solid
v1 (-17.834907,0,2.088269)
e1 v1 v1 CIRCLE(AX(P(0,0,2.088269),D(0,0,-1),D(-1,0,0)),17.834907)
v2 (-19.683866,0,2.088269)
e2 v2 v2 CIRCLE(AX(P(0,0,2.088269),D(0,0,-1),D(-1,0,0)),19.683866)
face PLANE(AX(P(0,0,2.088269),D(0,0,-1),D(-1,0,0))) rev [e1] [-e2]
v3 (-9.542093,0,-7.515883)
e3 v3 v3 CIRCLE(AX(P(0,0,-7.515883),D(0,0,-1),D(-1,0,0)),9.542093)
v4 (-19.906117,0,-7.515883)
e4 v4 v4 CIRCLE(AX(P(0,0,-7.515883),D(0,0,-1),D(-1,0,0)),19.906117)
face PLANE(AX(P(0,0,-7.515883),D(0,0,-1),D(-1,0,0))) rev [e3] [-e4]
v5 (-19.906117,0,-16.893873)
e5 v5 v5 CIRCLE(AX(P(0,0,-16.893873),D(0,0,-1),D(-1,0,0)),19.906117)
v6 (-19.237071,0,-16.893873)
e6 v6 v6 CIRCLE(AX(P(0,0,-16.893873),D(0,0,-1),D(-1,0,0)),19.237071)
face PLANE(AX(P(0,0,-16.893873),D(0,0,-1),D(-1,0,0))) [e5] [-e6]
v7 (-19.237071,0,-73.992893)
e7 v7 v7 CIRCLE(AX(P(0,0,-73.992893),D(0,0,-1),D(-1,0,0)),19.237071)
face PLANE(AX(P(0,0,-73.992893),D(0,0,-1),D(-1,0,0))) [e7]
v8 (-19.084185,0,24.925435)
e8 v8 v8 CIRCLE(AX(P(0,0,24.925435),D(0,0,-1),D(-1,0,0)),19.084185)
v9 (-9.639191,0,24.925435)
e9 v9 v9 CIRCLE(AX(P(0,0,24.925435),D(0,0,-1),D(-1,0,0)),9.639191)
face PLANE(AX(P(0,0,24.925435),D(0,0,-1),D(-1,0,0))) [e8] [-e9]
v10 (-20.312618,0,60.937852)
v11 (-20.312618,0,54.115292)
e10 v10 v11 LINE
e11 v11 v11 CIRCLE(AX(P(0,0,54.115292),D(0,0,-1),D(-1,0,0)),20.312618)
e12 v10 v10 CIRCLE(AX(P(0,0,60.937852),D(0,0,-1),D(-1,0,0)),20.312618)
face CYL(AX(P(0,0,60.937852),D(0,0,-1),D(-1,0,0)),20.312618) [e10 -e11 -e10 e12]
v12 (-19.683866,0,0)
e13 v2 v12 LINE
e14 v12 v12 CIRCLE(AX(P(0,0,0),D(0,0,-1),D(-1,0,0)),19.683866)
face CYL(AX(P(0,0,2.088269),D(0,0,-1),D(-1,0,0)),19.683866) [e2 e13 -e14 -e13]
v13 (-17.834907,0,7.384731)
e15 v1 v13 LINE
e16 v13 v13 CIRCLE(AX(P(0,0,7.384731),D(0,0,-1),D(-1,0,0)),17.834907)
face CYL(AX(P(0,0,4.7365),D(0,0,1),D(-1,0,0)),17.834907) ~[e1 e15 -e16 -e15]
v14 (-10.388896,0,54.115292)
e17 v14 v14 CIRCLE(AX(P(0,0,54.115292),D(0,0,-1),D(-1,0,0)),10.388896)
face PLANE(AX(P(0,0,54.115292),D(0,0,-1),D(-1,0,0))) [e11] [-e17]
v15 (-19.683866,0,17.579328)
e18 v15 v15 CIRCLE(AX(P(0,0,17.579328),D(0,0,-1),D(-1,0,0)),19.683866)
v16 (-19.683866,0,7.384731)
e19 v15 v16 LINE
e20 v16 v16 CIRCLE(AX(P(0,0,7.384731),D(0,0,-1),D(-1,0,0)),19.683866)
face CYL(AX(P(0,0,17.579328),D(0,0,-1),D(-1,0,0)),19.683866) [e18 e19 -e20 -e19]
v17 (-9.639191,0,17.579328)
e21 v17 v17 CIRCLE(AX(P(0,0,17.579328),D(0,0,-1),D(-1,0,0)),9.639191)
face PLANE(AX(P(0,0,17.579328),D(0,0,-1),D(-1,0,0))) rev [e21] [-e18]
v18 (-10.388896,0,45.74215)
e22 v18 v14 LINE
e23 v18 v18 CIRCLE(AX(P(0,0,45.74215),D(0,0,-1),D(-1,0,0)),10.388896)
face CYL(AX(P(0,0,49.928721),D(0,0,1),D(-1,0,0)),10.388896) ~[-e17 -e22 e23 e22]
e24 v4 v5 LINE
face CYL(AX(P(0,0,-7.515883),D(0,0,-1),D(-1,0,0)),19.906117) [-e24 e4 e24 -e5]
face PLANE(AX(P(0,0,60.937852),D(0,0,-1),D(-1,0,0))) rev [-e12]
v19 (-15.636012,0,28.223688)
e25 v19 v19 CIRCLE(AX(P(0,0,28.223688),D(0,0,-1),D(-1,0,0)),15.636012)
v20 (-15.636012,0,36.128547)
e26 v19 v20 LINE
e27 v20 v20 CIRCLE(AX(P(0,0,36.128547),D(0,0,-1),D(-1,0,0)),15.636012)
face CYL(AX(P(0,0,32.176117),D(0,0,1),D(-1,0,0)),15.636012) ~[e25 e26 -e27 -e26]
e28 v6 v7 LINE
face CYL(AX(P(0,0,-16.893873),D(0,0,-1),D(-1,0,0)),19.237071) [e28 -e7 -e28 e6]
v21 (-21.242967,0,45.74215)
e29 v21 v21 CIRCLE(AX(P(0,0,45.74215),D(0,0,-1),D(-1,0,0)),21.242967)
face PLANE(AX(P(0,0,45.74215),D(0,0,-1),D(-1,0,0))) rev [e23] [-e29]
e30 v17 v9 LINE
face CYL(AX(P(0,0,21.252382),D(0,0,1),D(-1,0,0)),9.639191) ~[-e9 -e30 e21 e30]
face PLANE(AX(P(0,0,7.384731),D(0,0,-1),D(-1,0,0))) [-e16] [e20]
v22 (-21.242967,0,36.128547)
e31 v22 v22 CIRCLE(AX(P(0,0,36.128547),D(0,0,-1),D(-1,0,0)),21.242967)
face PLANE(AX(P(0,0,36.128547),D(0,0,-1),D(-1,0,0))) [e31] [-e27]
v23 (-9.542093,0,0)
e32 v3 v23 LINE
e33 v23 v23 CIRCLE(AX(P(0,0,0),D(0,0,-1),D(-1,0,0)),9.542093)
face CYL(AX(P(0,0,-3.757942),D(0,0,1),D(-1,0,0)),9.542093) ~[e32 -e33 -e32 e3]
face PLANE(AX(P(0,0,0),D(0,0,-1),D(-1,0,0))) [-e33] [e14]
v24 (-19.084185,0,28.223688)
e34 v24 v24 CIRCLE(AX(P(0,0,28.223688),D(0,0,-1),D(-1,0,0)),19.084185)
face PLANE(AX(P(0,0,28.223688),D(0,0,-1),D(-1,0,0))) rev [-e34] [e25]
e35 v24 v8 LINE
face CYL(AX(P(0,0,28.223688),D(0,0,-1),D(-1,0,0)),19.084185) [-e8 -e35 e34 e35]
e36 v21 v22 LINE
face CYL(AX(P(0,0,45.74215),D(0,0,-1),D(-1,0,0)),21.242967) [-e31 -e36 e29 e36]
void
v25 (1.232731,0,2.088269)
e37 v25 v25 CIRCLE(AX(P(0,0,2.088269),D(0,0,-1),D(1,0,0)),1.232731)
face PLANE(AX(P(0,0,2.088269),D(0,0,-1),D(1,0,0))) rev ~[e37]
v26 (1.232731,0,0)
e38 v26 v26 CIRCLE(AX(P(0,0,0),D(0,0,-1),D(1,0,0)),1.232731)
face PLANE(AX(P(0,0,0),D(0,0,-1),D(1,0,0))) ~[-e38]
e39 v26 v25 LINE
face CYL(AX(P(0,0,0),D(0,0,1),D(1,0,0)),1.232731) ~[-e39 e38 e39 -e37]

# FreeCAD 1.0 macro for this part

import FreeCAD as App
import Part
import Sketcher
Q = App.Units.Quantity


def add_polygon(sketch, points):
    """Adds a closed chain of lines whose ends are joined by coincident constraints."""
    first, n = sketch.GeometryCount, len(points)
    for a, b in zip(points, points[1:] + points[:1]):
        sketch.addGeometry(Part.LineSegment(App.Vector(*a, 0), App.Vector(*b, 0)), False)
    for i in range(n):
        sketch.addConstraint(Sketcher.Constraint("Coincident", first + i, 2, first + (i + 1) % n, 1))

doc = App.newDocument("Part")
body = doc.addObject("PartDesign::Body", "Body")

# Sketch on XZ plane
sketch1 = doc.addObject("Sketcher::SketchObject", "Sketch")
body.addObject(sketch1)
sketch1.AttachmentSupport = (doc.XZ_Plane, [""])
sketch1.MapMode = "FlatFace"
add_polygon(sketch1, [(0, 54.115292), (0, 60.937852), (-20.312618, 60.937852), (-20.312618, 54.115292), (-10.388896, 54.115292), (-10.388896, 45.74215), (-21.242967, 45.74215), (-21.242967, 36.128547), (-15.636012, 36.128547), (-15.636012, 28.223688), (-19.084185, 28.223688), (-19.084185, 24.925435), (-9.639191, 24.925435), (-9.639191, 17.579328), (-19.683866, 17.579328), (-19.683866, 7.384731), (-17.834907, 7.384731), (-17.834907, 2.088269), (-19.683866, 2.088269), (-19.683866, 0), (-9.542093, 0), (-9.542093, -7.515883), (-19.906117, -7.515883), (-19.906117, -16.893873), (-19.237071, -16.893873), (-19.237071, -73.992893), (0, -73.992893), (0, 0), (1.232731, 0), (1.232731, 2.088269), (0, 2.088269), (0, 17.579328), (0, 24.925435), (0, 28.223688), (0, 36.128547), (0, 45.74215)])  # lines 0-35
sketch1.addConstraint(Sketcher.Constraint("Vertical", 0))
sketch1.addConstraint(Sketcher.Constraint("Horizontal", 1))
sketch1.addConstraint(Sketcher.Constraint("Vertical", 2))
sketch1.addConstraint(Sketcher.Constraint("Horizontal", 3))
sketch1.addConstraint(Sketcher.Constraint("Vertical", 4))
sketch1.addConstraint(Sketcher.Constraint("Horizontal", 5))
sketch1.addConstraint(Sketcher.Constraint("Vertical", 6))
sketch1.addConstraint(Sketcher.Constraint("Horizontal", 7))
sketch1.addConstraint(Sketcher.Constraint("Vertical", 8))
sketch1.addConstraint(Sketcher.Constraint("Horizontal", 9))
sketch1.addConstraint(Sketcher.Constraint("Vertical", 10))
sketch1.addConstraint(Sketcher.Constraint("Horizontal", 11))
sketch1.addConstraint(Sketcher.Constraint("Vertical", 12))
sketch1.addConstraint(Sketcher.Constraint("Horizontal", 13))
sketch1.addConstraint(Sketcher.Constraint("Vertical", 14))
sketch1.addConstraint(Sketcher.Constraint("Horizontal", 15))
sketch1.addConstraint(Sketcher.Constraint("Vertical", 16))
sketch1.addConstraint(Sketcher.Constraint("Horizontal", 17))
sketch1.addConstraint(Sketcher.Constraint("Vertical", 18))
sketch1.addConstraint(Sketcher.Constraint("Horizontal", 19))
sketch1.addConstraint(Sketcher.Constraint("Vertical", 20))
sketch1.addConstraint(Sketcher.Constraint("Horizontal", 21))
sketch1.addConstraint(Sketcher.Constraint("Vertical", 22))
sketch1.addConstraint(Sketcher.Constraint("Horizontal", 23))
sketch1.addConstraint(Sketcher.Constraint("Vertical", 24))
sketch1.addConstraint(Sketcher.Constraint("Horizontal", 25))
sketch1.addConstraint(Sketcher.Constraint("Vertical", 26))
sketch1.addConstraint(Sketcher.Constraint("Horizontal", 27))
sketch1.addConstraint(Sketcher.Constraint("Vertical", 28))
sketch1.addConstraint(Sketcher.Constraint("Horizontal", 29))
sketch1.addConstraint(Sketcher.Constraint("Vertical", 30))
sketch1.addConstraint(Sketcher.Constraint("Vertical", 31))
sketch1.addConstraint(Sketcher.Constraint("Vertical", 32))
sketch1.addConstraint(Sketcher.Constraint("Vertical", 33))
sketch1.addConstraint(Sketcher.Constraint("Vertical", 34))
sketch1.addConstraint(Sketcher.Constraint("Vertical", 35))
sketch1.addConstraint(Sketcher.Constraint("Coincident", 26, 2, -1, 1))
sketch1.addConstraint(Sketcher.Constraint("PointOnObject", 0, 2, -2))
sketch1.addConstraint(Sketcher.Constraint("PointOnObject", 18, 2, -1))
sketch1.addConstraint(Sketcher.Constraint("Horizontal", 17, 2, 28, 2))
sketch1.addConstraint(Sketcher.Constraint("Horizontal", 13, 2, 30, 2))
sketch1.addConstraint(Sketcher.Constraint("Horizontal", 11, 2, 31, 2))
sketch1.addConstraint(Sketcher.Constraint("Horizontal", 9, 2, 32, 2))
sketch1.addConstraint(Sketcher.Constraint("Horizontal", 7, 2, 33, 2))
sketch1.addConstraint(Sketcher.Constraint("Horizontal", 5, 2, 34, 2))
sketch1.addConstraint(Sketcher.Constraint("Horizontal", 3, 2, 35, 2))
sketch1.addConstraint(Sketcher.Constraint("Vertical", 14, 2, 17, 2))
sketch1.addConstraint(Sketcher.Constraint("DistanceX", 1, 2, 1, 1, Q("20.312618 mm")))
sketch1.addConstraint(Sketcher.Constraint("DistanceX", 5, 2, 5, 1, Q("10.854071 mm")))
sketch1.addConstraint(Sketcher.Constraint("DistanceX", 15, 1, 15, 2, Q("1.848958 mm")))
sketch1.addConstraint(Sketcher.Constraint("DistanceX", 25, 1, 25, 2, Q("19.237071 mm")))
sketch1.addConstraint(Sketcher.Constraint("DistanceX", 27, 1, 27, 2, Q("1.232731 mm")))
sketch1.addConstraint(Sketcher.Constraint("DistanceY", 0, 1, 0, 2, Q("6.82256 mm")))
sketch1.addConstraint(Sketcher.Constraint("DistanceY", 4, 2, 4, 1, Q("8.373141 mm")))
sketch1.addConstraint(Sketcher.Constraint("DistanceY", 8, 2, 8, 1, Q("7.904859 mm")))
sketch1.addConstraint(Sketcher.Constraint("DistanceY", 16, 2, 16, 1, Q("5.296462 mm")))
sketch1.addConstraint(Sketcher.Constraint("DistanceY", 18, 2, 18, 1, Q("2.088269 mm")))
sketch1.addConstraint(Sketcher.Constraint("DistanceY", 22, 2, 22, 1, Q("9.37799 mm")))
sketch1.addConstraint(Sketcher.Constraint("DistanceY", 24, 2, 24, 1, Q("57.09902 mm")))
sketch1.addConstraint(Sketcher.Constraint("DistanceY", 30, 1, 30, 2, Q("15.49106 mm")))
sketch1.addConstraint(Sketcher.Constraint("DistanceX", 3, 1, 3, 2, Q("9.923723 mm")))
sketch1.addConstraint(Sketcher.Constraint("DistanceX", 7, 1, 7, 2, Q("5.606955 mm")))
sketch1.addConstraint(Sketcher.Constraint("DistanceX", 9, 2, 9, 1, Q("3.448173 mm")))
sketch1.addConstraint(Sketcher.Constraint("DistanceX", 11, 1, 11, 2, Q("9.444995 mm")))
sketch1.addConstraint(Sketcher.Constraint("DistanceX", 13, 2, 13, 1, Q("10.044675 mm")))
sketch1.addConstraint(Sketcher.Constraint("DistanceX", 19, 1, 19, 2, Q("10.141773 mm")))
sketch1.addConstraint(Sketcher.Constraint("DistanceX", 21, 2, 21, 1, Q("10.364024 mm")))
sketch1.addConstraint(Sketcher.Constraint("DistanceY", 6, 2, 6, 1, Q("9.613603 mm")))
sketch1.addConstraint(Sketcher.Constraint("DistanceY", 10, 2, 10, 1, Q("3.298253 mm")))
sketch1.addConstraint(Sketcher.Constraint("DistanceY", 12, 2, 12, 1, Q("7.346107 mm")))
sketch1.addConstraint(Sketcher.Constraint("DistanceY", 20, 2, 20, 1, Q("7.515883 mm")))
revolution = doc.addObject("PartDesign::Revolution", "Revolution")
body.addObject(revolution)
revolution.Profile = sketch1
revolution.ReferenceAxis = (sketch1, ["V_Axis"])
revolution.Angle = 360

doc.recompute()
